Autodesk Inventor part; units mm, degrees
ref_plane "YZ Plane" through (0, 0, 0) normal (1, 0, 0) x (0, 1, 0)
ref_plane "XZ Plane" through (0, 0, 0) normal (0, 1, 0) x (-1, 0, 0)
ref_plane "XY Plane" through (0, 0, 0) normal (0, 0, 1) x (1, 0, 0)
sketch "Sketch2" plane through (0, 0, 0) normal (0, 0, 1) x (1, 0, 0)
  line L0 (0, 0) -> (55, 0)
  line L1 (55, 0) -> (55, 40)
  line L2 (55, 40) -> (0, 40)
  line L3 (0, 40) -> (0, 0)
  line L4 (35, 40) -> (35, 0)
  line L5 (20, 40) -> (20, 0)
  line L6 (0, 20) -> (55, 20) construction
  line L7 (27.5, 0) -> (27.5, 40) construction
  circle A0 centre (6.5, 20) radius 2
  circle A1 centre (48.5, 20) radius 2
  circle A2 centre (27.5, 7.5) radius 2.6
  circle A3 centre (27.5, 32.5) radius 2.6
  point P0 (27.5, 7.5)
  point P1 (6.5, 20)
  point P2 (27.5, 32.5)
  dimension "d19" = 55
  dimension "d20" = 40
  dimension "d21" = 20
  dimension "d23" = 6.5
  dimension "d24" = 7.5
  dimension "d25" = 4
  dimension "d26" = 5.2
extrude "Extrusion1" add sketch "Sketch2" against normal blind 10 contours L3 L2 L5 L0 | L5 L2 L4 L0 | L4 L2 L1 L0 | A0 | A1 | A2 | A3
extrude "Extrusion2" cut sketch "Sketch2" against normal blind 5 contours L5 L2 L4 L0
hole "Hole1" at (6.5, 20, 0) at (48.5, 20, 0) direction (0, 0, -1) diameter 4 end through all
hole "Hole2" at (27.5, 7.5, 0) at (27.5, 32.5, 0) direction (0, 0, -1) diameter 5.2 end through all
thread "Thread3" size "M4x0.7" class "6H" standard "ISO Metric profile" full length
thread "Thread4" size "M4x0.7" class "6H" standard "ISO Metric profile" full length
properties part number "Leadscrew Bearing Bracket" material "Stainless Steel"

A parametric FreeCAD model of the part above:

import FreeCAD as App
import Part
import Sketcher
from FreeCAD import Vector


def add_polygon(sketch, points):
    """Adds a closed chain of lines whose ends are joined by coincident constraints."""
    first, n = sketch.GeometryCount, len(points)
    for a, b in zip(points, points[1:] + points[:1]):
        sketch.addGeometry(Part.LineSegment(App.Vector(*a, 0), App.Vector(*b, 0)), False)
    for i in range(n):
        sketch.addConstraint(Sketcher.Constraint("Coincident", first + i, 2, first + (i + 1) % n, 1))

doc = App.newDocument("Part")
params = doc.addObject("Spreadsheet::Sheet", "Params")
for row, (alias, value) in enumerate([
    ("sketch1_width", "55 mm"),
    ("sketch1_height", "40 mm"),
    ("pad1_length", "10 mm"),
    ("sketch2_diameter", "5.2 mm"),
    ("sketch2_height", "40 mm"),
    ("pocket1_length", "5 mm"),
    ("sketch3_diameter", "4 mm"),
    ("hole_diameter", "4 mm"),
    ("sketch4_diameter", "5.2 mm"),
    ("hole2_diameter", "5.2 mm"),
], start=1):
    params.set(f"A{row}", alias)
    params.set(f"B{row}", "=" + value)
    params.setAlias(f"B{row}", alias)

body = doc.addObject("PartDesign::Body", "Body")

# Sketch on XY plane
sketch1 = body.newObject("Sketcher::SketchObject", "Sketch")
sketch1.AttachmentSupport = (doc.getObject("XY_Plane"), [""])
sketch1.MapMode = "FlatFace"
add_polygon(sketch1, [(0, 40), (0, 0), (55, 0), (55, 40)])  # lines 0-3
sketch1.addConstraint(Sketcher.Constraint("Vertical", 0))
sketch1.addConstraint(Sketcher.Constraint("Horizontal", 1))
sketch1.addConstraint(Sketcher.Constraint("Vertical", 2))
sketch1.addConstraint(Sketcher.Constraint("Horizontal", 3))
sketch1.addConstraint(Sketcher.Constraint("Coincident", 0, 2, -1, 1))
sketch1.addConstraint(Sketcher.Constraint("DistanceX", 1, 1, 1, 2, 55.0))
sketch1.addConstraint(Sketcher.Constraint("DistanceY", 0, 2, 0, 1, 40.0))
sketch1.setExpression("Constraints[9]", "Params.sketch1_width")
sketch1.setExpression("Constraints[10]", "Params.sketch1_height")
pad1 = body.newObject("PartDesign::Pad", "Pad")
pad1.Profile = sketch1
pad1.setExpression("Length", "Params.pad1_length")
pad1.Reversed = True

# Sketch on XY plane
sketch2 = body.newObject("Sketcher::SketchObject", "Sketch001")
sketch2.AttachmentSupport = (doc.getObject("XY_Plane"), [""])
sketch2.MapMode = "FlatFace"
add_polygon(sketch2, [(20, 40), (20, 0), (35, 0), (35, 40)])  # lines 0-3
sketch2.addGeometry(Part.Circle(Vector(27.5, 7.5, 0), Vector(0, 0, 1), 2.6), False)  # 4
sketch2.addGeometry(Part.Circle(Vector(27.5, 32.5, 0), Vector(0, 0, 1), 2.6), False)  # 5
sketch2.addConstraint(Sketcher.Constraint("Vertical", 0))
sketch2.addConstraint(Sketcher.Constraint("Horizontal", 1))
sketch2.addConstraint(Sketcher.Constraint("Vertical", 2))
sketch2.addConstraint(Sketcher.Constraint("Horizontal", 3))
sketch2.addConstraint(Sketcher.Constraint("Equal", 4, 5))
sketch2.addConstraint(Sketcher.Constraint("PointOnObject", 0, 2, -1))
sketch2.addConstraint(Sketcher.Constraint("Vertical", 4, 3, 5, 3))
sketch2.addConstraint(Sketcher.Constraint("Diameter", 4, 5.2))
sketch2.addConstraint(Sketcher.Constraint("DistanceY", 0, 2, 0, 1, 40.0))
sketch2.addConstraint(Sketcher.Constraint("DistanceX", -1, 1, 0, 2, 20.0))
sketch2.addConstraint(Sketcher.Constraint("DistanceY", -1, 1, 4, 3, 7.5))
sketch2.addConstraint(Sketcher.Constraint("DistanceX", 0, 2, 4, 3, 7.5))
sketch2.addConstraint(Sketcher.Constraint("DistanceX", 4, 3, 1, 2, 7.5))
sketch2.addConstraint(Sketcher.Constraint("DistanceY", 5, 3, 2, 2, 7.5))
sketch2.setExpression("Constraints[11]", "Params.sketch2_diameter")
sketch2.setExpression("Constraints[12]", "Params.sketch2_height")
pocket1 = body.newObject("PartDesign::Pocket", "Pocket")
pocket1.Profile = sketch2
pocket1.setExpression("Length", "Params.pocket1_length")

# Sketch on XY plane
sketch3 = body.newObject("Sketcher::SketchObject", "Sketch002")
sketch3.AttachmentSupport = (doc.getObject("XY_Plane"), [""])
sketch3.MapMode = "FlatFace"
sketch3.addGeometry(Part.Circle(Vector(6.5, 20, 0), Vector(0, 0, 1), 2), False)
sketch3.addGeometry(Part.Circle(Vector(48.5, 20, 0), Vector(0, 0, 1), 2), False)
sketch3.addConstraint(Sketcher.Constraint("Equal", 0, 1))
sketch3.addConstraint(Sketcher.Constraint("Horizontal", 0, 3, 1, 3))
sketch3.addConstraint(Sketcher.Constraint("Diameter", 0, 4.0))
sketch3.addConstraint(Sketcher.Constraint("DistanceY", -1, 1, 0, 3, 20.0))
sketch3.addConstraint(Sketcher.Constraint("DistanceX", 0, 3, 1, 3, 42.0))
sketch3.addConstraint(Sketcher.Constraint("DistanceX", -1, 1, 0, 3, 6.5))
sketch3.setExpression("Constraints[2]", "Params.sketch3_diameter")
doc.recompute()
hole = body.newObject("PartDesign::Hole", "Hole")
hole.Profile = sketch3
hole.ThreadType = "None"
hole.setExpression("Diameter", "Params.hole_diameter")
hole.DepthType = "ThroughAll"

# Sketch on XY plane
sketch4 = body.newObject("Sketcher::SketchObject", "Sketch003")
sketch4.AttachmentSupport = (doc.getObject("XY_Plane"), [""])
sketch4.MapMode = "FlatFace"
sketch4.addGeometry(Part.Circle(Vector(27.5, 7.5, 0), Vector(0, 0, 1), 2.6), False)
sketch4.addGeometry(Part.Circle(Vector(27.5, 32.5, 0), Vector(0, 0, 1), 2.6), False)
sketch4.addConstraint(Sketcher.Constraint("Equal", 0, 1))
sketch4.addConstraint(Sketcher.Constraint("Vertical", 0, 3, 1, 3))
sketch4.addConstraint(Sketcher.Constraint("Diameter", 0, 5.2))
sketch4.addConstraint(Sketcher.Constraint("DistanceY", 0, 3, 1, 3, 25.0))
sketch4.addConstraint(Sketcher.Constraint("DistanceX", -1, 1, 0, 3, 27.5))
sketch4.addConstraint(Sketcher.Constraint("DistanceY", -1, 1, 0, 3, 7.5))
sketch4.setExpression("Constraints[2]", "Params.sketch4_diameter")
doc.recompute()
hole2 = body.newObject("PartDesign::Hole", "Hole001")
hole2.Profile = sketch4
hole2.ThreadType = "None"
hole2.setExpression("Diameter", "Params.hole2_diameter")
hole2.DepthType = "ThroughAll"

doc.recompute()
